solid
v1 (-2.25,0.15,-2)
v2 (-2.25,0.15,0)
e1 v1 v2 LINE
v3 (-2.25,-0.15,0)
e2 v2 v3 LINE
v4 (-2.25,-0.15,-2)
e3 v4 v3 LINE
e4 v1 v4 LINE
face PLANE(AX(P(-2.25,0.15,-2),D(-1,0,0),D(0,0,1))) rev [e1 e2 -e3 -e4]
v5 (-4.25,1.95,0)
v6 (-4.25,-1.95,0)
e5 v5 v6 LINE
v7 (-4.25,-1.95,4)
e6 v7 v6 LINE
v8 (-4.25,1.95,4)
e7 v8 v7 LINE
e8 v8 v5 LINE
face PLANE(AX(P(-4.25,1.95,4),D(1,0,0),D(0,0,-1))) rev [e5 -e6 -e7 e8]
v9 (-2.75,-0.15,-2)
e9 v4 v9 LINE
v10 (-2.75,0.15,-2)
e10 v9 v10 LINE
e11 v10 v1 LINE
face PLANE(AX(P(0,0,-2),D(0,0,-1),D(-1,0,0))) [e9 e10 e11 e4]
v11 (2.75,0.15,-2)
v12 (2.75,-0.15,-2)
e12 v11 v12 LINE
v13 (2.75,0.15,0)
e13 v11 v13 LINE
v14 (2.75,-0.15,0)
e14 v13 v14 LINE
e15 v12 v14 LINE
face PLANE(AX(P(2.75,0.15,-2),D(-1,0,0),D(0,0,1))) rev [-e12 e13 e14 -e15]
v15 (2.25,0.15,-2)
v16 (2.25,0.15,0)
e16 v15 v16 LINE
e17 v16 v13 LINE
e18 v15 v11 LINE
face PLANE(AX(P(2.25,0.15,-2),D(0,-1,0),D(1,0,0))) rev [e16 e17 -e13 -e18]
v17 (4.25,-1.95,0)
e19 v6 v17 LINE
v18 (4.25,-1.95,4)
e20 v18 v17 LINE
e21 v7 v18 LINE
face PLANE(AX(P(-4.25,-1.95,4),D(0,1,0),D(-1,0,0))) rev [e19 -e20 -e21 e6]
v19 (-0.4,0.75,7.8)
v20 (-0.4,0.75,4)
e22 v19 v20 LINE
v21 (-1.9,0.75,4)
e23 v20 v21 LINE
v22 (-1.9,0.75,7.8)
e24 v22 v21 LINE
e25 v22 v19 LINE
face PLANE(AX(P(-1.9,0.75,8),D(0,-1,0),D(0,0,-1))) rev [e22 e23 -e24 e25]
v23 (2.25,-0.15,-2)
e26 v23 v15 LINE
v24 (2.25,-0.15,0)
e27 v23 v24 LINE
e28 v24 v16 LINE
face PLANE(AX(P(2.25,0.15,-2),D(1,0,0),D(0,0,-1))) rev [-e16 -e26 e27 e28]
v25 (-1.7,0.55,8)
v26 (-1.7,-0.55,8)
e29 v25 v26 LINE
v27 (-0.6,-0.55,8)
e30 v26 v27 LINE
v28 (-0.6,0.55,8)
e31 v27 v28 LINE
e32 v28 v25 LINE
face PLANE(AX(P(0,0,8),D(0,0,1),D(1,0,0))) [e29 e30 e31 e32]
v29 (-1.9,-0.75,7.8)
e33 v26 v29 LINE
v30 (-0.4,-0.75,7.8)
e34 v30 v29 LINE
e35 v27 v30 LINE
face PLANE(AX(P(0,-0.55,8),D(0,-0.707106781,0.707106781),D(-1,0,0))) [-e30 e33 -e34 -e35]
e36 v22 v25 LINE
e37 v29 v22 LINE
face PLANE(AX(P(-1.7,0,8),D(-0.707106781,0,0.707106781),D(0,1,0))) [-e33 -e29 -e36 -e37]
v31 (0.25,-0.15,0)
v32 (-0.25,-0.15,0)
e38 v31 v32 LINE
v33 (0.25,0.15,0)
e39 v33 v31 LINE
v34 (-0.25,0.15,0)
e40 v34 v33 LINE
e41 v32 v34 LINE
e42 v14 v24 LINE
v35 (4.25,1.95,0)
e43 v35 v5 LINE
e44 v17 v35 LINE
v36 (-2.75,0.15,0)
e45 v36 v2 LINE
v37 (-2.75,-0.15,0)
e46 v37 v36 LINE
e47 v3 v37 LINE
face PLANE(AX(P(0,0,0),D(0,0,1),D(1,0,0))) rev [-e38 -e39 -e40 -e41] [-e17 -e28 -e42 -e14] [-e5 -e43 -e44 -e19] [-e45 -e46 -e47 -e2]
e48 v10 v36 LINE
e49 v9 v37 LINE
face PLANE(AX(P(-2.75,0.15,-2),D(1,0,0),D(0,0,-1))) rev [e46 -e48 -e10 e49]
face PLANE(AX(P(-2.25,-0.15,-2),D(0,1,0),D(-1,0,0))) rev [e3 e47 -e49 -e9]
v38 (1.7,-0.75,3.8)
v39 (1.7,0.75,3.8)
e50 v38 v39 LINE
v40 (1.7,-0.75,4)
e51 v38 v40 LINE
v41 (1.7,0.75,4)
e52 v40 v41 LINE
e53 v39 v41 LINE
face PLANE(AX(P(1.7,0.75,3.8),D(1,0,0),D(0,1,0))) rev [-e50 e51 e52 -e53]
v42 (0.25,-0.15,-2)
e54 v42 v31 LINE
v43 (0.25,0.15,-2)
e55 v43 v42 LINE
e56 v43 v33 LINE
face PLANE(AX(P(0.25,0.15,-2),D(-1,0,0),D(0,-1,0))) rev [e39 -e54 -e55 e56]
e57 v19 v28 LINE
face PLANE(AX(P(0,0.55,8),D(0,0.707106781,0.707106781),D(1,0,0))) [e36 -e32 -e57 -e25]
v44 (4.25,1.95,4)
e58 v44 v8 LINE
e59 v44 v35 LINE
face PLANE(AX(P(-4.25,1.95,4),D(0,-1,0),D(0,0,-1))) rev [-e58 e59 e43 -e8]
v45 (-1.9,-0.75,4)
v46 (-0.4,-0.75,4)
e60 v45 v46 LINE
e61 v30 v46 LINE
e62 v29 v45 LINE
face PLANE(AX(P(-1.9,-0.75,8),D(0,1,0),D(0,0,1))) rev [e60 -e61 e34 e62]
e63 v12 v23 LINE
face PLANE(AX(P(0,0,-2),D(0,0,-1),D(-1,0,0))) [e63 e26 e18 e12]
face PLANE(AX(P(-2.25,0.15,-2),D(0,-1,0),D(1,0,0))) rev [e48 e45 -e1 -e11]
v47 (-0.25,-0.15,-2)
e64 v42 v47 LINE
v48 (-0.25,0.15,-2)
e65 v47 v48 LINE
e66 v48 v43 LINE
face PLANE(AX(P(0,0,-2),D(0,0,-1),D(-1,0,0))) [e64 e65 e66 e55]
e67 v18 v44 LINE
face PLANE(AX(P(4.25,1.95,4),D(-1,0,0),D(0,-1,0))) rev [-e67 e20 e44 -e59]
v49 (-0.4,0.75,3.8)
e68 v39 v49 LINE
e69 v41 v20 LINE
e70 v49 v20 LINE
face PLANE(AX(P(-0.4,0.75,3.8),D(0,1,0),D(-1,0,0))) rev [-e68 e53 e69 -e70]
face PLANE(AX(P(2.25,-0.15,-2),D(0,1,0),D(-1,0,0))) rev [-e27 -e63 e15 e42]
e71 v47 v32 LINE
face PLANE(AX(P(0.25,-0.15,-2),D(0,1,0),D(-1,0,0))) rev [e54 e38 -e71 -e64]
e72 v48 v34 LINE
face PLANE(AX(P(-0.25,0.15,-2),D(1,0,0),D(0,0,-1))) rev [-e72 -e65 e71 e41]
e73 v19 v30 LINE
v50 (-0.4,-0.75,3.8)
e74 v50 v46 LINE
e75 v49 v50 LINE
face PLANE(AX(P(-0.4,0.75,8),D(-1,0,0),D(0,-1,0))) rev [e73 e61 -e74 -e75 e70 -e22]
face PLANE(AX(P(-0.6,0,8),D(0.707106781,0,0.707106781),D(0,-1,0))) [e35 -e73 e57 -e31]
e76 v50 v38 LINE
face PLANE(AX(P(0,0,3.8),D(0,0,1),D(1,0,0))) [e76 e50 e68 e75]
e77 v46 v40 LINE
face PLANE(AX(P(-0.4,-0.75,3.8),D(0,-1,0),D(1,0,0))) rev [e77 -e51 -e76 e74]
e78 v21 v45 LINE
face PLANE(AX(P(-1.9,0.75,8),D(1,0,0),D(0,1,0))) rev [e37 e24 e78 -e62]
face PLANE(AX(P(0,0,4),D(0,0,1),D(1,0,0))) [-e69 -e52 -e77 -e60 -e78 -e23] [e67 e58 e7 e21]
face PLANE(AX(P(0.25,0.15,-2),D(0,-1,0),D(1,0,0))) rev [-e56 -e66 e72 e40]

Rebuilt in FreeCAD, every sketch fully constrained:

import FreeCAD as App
import Part
import Sketcher


def edges_at(feature, points):
    """Names of the edges that pass closest to the given points."""
    edges = feature.Shape.Edges
    near = lambda p: min(range(len(edges)), key=lambda i: edges[i].distToShape(Part.Vertex(*p))[0])
    return sorted({f"Edge{near(p) + 1}" for p in points})


def add_polygon(sketch, points):
    """Adds a closed chain of lines whose ends are joined by coincident constraints."""
    first, n = sketch.GeometryCount, len(points)
    for a, b in zip(points, points[1:] + points[:1]):
        sketch.addGeometry(Part.LineSegment(App.Vector(*a, 0), App.Vector(*b, 0)), False)
    for i in range(n):
        sketch.addConstraint(Sketcher.Constraint("Coincident", first + i, 2, first + (i + 1) % n, 1))

doc = App.newDocument("Part")
body = doc.addObject("PartDesign::Body", "Body")

# Sketch on XY plane
sketch1 = body.newObject("Sketcher::SketchObject", "Sketch")
sketch1.AttachmentSupport = (doc.getObject("XY_Plane"), [""])
sketch1.MapMode = "FlatFace"
add_polygon(sketch1, [(-4.25, 1.95), (-4.25, -1.95), (4.25, -1.95), (4.25, 1.95)])  # lines 0-3
sketch1.addConstraint(Sketcher.Constraint("Vertical", 0))
sketch1.addConstraint(Sketcher.Constraint("Horizontal", 1))
sketch1.addConstraint(Sketcher.Constraint("Vertical", 2))
sketch1.addConstraint(Sketcher.Constraint("Horizontal", 3))
sketch1.addConstraint(Sketcher.Constraint("Symmetric", 0, 2, 2, 2, -1, 1))
sketch1.addConstraint(Sketcher.Constraint("DistanceX", 1, 1, 1, 2, 8.5))
sketch1.addConstraint(Sketcher.Constraint("DistanceY", 0, 2, 0, 1, 3.9))
pad1 = body.newObject("PartDesign::Pad", "Pad")
pad1.Profile = sketch1
pad1.Length = 4

# Sketch on XY plane
sketch2 = body.newObject("Sketcher::SketchObject", "Sketch001")
sketch2.AttachmentSupport = (doc.getObject("XY_Plane"), [""])
sketch2.MapMode = "FlatFace"
sketch2.AttachmentOffset = App.Placement(App.Vector(0, 0, 4), App.Rotation())
add_polygon(sketch2, [(-1.9, 0.75), (-1.9, -0.75), (-0.4, -0.75), (-0.4, 0.75)])  # lines 0-3
sketch2.addConstraint(Sketcher.Constraint("Vertical", 0))
sketch2.addConstraint(Sketcher.Constraint("Horizontal", 1))
sketch2.addConstraint(Sketcher.Constraint("Vertical", 2))
sketch2.addConstraint(Sketcher.Constraint("Horizontal", 3))
sketch2.addConstraint(Sketcher.Constraint("Equal", 3, 0))
sketch2.addConstraint(Sketcher.Constraint("DistanceX", 1, 1, 1, 2, 1.5))
sketch2.addConstraint(Sketcher.Constraint("DistanceX", 0, 2, -1, 1, 1.9))
sketch2.addConstraint(Sketcher.Constraint("DistanceY", 0, 2, -1, 1, 0.75))
pad2 = body.newObject("PartDesign::Pad", "Pad001")
pad2.Profile = sketch2
pad2.Length = 4
doc.recompute()

chamfer = body.newObject("PartDesign::Chamfer", "Chamfer")
chamfer.Base = (pad2, edges_at(pad2, [
    (-0.4, 0, 8),
    (-1.15, 0.75, 8),
    (-1.9, 0, 8),
    (-1.15, -0.75, 8),
]))
chamfer.Size = 0.2

# Sketch on XY plane
sketch3 = body.newObject("Sketcher::SketchObject", "Sketch002")
sketch3.AttachmentSupport = (doc.getObject("XY_Plane"), [""])
sketch3.MapMode = "FlatFace"
sketch3.AttachmentOffset = App.Placement(App.Vector(0, 0, 4), App.Rotation())
add_polygon(sketch3, [(-0.4, 0.75), (-0.4, -0.75), (1.7, -0.75), (1.7, 0.75)])  # lines 0-3
sketch3.addConstraint(Sketcher.Constraint("Vertical", 0))
sketch3.addConstraint(Sketcher.Constraint("Horizontal", 1))
sketch3.addConstraint(Sketcher.Constraint("Vertical", 2))
sketch3.addConstraint(Sketcher.Constraint("Horizontal", 3))
sketch3.addConstraint(Sketcher.Constraint("DistanceX", 1, 1, 1, 2, 2.1))
sketch3.addConstraint(Sketcher.Constraint("DistanceY", 0, 2, 0, 1, 1.5))
sketch3.addConstraint(Sketcher.Constraint("DistanceX", 0, 2, -1, 1, 0.4))
sketch3.addConstraint(Sketcher.Constraint("DistanceY", 0, 2, -1, 1, 0.75))
pocket1 = body.newObject("PartDesign::Pocket", "Pocket")
pocket1.Profile = sketch3
pocket1.Length = 0.2

# Sketch on XY plane
sketch4 = body.newObject("Sketcher::SketchObject", "Sketch003")
sketch4.AttachmentSupport = (doc.getObject("XY_Plane"), [""])
sketch4.MapMode = "FlatFace"
add_polygon(sketch4, [(0.25, 0.15), (0.25, -0.15), (-0.25, -0.15), (-0.25, 0.15)])  # lines 0-3
add_polygon(sketch4, [(-2.25, 0.15), (-2.25, -0.15), (-2.75, -0.15), (-2.75, 0.15)])  # lines 4-7
add_polygon(sketch4, [(2.75, 0.15), (2.75, -0.15), (2.25, -0.15), (2.25, 0.15)])  # lines 8-11
sketch4.addConstraint(Sketcher.Constraint("Vertical", 0))
sketch4.addConstraint(Sketcher.Constraint("Horizontal", 1))
sketch4.addConstraint(Sketcher.Constraint("Vertical", 2))
sketch4.addConstraint(Sketcher.Constraint("Horizontal", 3))
sketch4.addConstraint(Sketcher.Constraint("Vertical", 4))
sketch4.addConstraint(Sketcher.Constraint("Horizontal", 5))
sketch4.addConstraint(Sketcher.Constraint("Vertical", 6))
sketch4.addConstraint(Sketcher.Constraint("Horizontal", 7))
sketch4.addConstraint(Sketcher.Constraint("Vertical", 8))
sketch4.addConstraint(Sketcher.Constraint("Horizontal", 9))
sketch4.addConstraint(Sketcher.Constraint("Vertical", 10))
sketch4.addConstraint(Sketcher.Constraint("Horizontal", 11))
sketch4.addConstraint(Sketcher.Constraint("Symmetric", 0, 2, 2, 2, -1, 1))
sketch4.addConstraint(Sketcher.Constraint("Symmetric", 6, 2, 8, 2, -1, 1))
sketch4.addConstraint(Sketcher.Constraint("Symmetric", 4, 2, 10, 2, -1, 1))
sketch4.addConstraint(Sketcher.Constraint("Horizontal", 1, 2, 4, 2))
sketch4.addConstraint(Sketcher.Constraint("Horizontal", 3, 2, 6, 2))
sketch4.addConstraint(Sketcher.Constraint("Equal", 3, 5))
sketch4.addConstraint(Sketcher.Constraint("DistanceX", 1, 2, 1, 1, 0.5))
sketch4.addConstraint(Sketcher.Constraint("DistanceY", 0, 2, 0, 1, 0.3))
sketch4.addConstraint(Sketcher.Constraint("DistanceX", 4, 2, 1, 2, 2.0))
pad3 = body.newObject("PartDesign::Pad", "Pad002")
pad3.Profile = sketch4
pad3.Length = 2
pad3.Reversed = True

doc.recompute()
